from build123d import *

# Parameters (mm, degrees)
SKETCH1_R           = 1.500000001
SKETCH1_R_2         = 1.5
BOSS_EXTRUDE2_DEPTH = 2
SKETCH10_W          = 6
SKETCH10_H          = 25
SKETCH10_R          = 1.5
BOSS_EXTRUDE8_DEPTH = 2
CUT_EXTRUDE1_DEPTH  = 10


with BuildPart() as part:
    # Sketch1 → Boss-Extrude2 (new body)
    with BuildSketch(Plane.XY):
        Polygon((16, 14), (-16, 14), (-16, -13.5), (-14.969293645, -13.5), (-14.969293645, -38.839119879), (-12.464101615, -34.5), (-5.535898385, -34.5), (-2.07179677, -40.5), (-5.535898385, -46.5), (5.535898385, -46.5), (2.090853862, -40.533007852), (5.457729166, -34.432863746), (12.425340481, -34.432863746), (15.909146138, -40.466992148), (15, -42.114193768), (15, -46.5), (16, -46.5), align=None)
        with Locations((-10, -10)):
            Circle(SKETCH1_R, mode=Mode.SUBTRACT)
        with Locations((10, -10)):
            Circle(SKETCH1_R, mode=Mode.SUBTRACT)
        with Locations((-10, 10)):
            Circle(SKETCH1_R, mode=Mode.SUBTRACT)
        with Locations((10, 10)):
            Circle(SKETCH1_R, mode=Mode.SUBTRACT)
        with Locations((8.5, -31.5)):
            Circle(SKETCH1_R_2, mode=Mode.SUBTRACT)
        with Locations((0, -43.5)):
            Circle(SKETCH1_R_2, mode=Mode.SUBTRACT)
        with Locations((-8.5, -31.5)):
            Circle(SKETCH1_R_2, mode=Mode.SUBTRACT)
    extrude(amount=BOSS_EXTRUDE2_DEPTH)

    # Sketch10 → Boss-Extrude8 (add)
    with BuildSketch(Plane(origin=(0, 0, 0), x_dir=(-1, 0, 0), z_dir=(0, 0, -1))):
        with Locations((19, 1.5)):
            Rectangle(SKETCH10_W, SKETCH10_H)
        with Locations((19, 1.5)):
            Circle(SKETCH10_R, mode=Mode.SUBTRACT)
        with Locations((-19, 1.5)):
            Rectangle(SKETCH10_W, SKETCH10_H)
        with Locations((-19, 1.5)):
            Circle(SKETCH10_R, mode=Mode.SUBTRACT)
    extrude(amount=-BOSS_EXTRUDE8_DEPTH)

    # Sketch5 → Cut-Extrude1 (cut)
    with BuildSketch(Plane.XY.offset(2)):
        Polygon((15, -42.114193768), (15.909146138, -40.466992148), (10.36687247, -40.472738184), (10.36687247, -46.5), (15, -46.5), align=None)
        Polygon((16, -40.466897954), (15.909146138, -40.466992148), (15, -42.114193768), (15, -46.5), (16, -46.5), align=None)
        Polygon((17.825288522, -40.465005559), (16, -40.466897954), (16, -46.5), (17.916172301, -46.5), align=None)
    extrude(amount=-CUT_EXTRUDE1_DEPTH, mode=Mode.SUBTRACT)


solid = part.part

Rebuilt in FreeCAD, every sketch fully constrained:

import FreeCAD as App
import Part
import Sketcher
from FreeCAD import Vector
Q = App.Units.Quantity

doc = App.newDocument("Part")
body = doc.addObject("PartDesign::Body", "Body")

sketch1 = body.newObject("Sketcher::SketchObject", "Sketch")
sketch1.AttachmentSupport = (doc.getObject("XY_Plane"), [""])
sketch1.MapMode = "FlatFace"
sketch1.addGeometry(Part.LineSegment(Vector(16, 14, 0), Vector(-16, 14, 0)), False)
sketch1.addGeometry(Part.LineSegment(Vector(-16, 14, 0), Vector(-16, -13.5, 0)), False)
sketch1.addGeometry(Part.LineSegment(Vector(-16, -13.5, 0), Vector(-15, -13.5, 0)), False)
sketch1.addGeometry(Part.LineSegment(Vector(-15, -13.5, 0), Vector(-15, -38.8, 0)), False)
sketch1.addGeometry(Part.LineSegment(Vector(-15, -38.8, 0), Vector(-12.5, -34.5, 0)), False)
sketch1.addGeometry(Part.LineSegment(Vector(-12.5, -34.5, 0), Vector(-5.5, -34.5, 0)), False)
sketch1.addGeometry(Part.LineSegment(Vector(-5.5, -34.5, 0), Vector(-2.1, -40.5, 0)), False)
sketch1.addGeometry(Part.LineSegment(Vector(-2.1, -40.5, 0), Vector(-5.5, -46.5, 0)), False)
sketch1.addGeometry(Part.LineSegment(Vector(-5.5, -46.5, 0), Vector(5.5, -46.5, 0)), False)
sketch1.addGeometry(Part.LineSegment(Vector(5.5, -46.5, 0), Vector(2.1, -40.5, 0)), False)
sketch1.addGeometry(Part.LineSegment(Vector(2.1, -40.5, 0), Vector(5.5, -34.4, 0)), False)
sketch1.addGeometry(Part.LineSegment(Vector(5.5, -34.4, 0), Vector(12.4, -34.4, 0)), False)
sketch1.addGeometry(Part.LineSegment(Vector(12.4, -34.4, 0), Vector(15.9, -40.5, 0)), False)
sketch1.addGeometry(Part.LineSegment(Vector(15.9, -40.5, 0), Vector(15, -42.1, 0)), False)
sketch1.addGeometry(Part.LineSegment(Vector(15, -42.1, 0), Vector(15, -46.5, 0)), False)
sketch1.addGeometry(Part.LineSegment(Vector(15, -46.5, 0), Vector(16, -46.5, 0)), False)
sketch1.addGeometry(Part.LineSegment(Vector(16, -46.5, 0), Vector(16, 14, 0)), False)
sketch1.addGeometry(Part.Circle(Vector(-8.5, -31.5, 0), Vector(0, 0, 1), 1.5), False)
sketch1.addGeometry(Part.Circle(Vector(0, -43.5, 0), Vector(0, 0, 1), 1.5), False)
sketch1.addGeometry(Part.Circle(Vector(8.5, -31.5, 0), Vector(0, 0, 1), 1.5), False)
sketch1.addGeometry(Part.Circle(Vector(-10, -10, 0), Vector(0, 0, 1), 1.5), False)
sketch1.addGeometry(Part.Circle(Vector(-10, 10, 0), Vector(0, 0, 1), 1.5), False)
sketch1.addGeometry(Part.Circle(Vector(10, -10, 0), Vector(0, 0, 1), 1.5), False)
sketch1.addGeometry(Part.Circle(Vector(10, 10, 0), Vector(0, 0, 1), 1.5), False)
sketch1.addConstraint(Sketcher.Constraint("Coincident", 0, 2, 1, 1))
sketch1.addConstraint(Sketcher.Constraint("Coincident", 1, 2, 2, 1))
sketch1.addConstraint(Sketcher.Constraint("Coincident", 2, 2, 3, 1))
sketch1.addConstraint(Sketcher.Constraint("Coincident", 3, 2, 4, 1))
sketch1.addConstraint(Sketcher.Constraint("Coincident", 4, 2, 5, 1))
sketch1.addConstraint(Sketcher.Constraint("Coincident", 5, 2, 6, 1))
sketch1.addConstraint(Sketcher.Constraint("Coincident", 6, 2, 7, 1))
sketch1.addConstraint(Sketcher.Constraint("Coincident", 7, 2, 8, 1))
sketch1.addConstraint(Sketcher.Constraint("Coincident", 8, 2, 9, 1))
sketch1.addConstraint(Sketcher.Constraint("Coincident", 9, 2, 10, 1))
sketch1.addConstraint(Sketcher.Constraint("Coincident", 10, 2, 11, 1))
sketch1.addConstraint(Sketcher.Constraint("Coincident", 11, 2, 12, 1))
sketch1.addConstraint(Sketcher.Constraint("Coincident", 12, 2, 13, 1))
sketch1.addConstraint(Sketcher.Constraint("Coincident", 13, 2, 14, 1))
sketch1.addConstraint(Sketcher.Constraint("Coincident", 14, 2, 15, 1))
sketch1.addConstraint(Sketcher.Constraint("Coincident", 15, 2, 16, 1))
sketch1.addConstraint(Sketcher.Constraint("Coincident", 16, 2, 0, 1))
sketch1.addConstraint(Sketcher.Constraint("Horizontal", 0))
sketch1.addConstraint(Sketcher.Constraint("Vertical", 1))
sketch1.addConstraint(Sketcher.Constraint("Horizontal", 2))
sketch1.addConstraint(Sketcher.Constraint("Vertical", 3))
sketch1.addConstraint(Sketcher.Constraint("Horizontal", 5))
sketch1.addConstraint(Sketcher.Constraint("Horizontal", 8))
sketch1.addConstraint(Sketcher.Constraint("Horizontal", 11))
sketch1.addConstraint(Sketcher.Constraint("Vertical", 14))
sketch1.addConstraint(Sketcher.Constraint("Horizontal", 15))
sketch1.addConstraint(Sketcher.Constraint("Vertical", 16))
sketch1.addConstraint(Sketcher.Constraint("Equal", 17, 18))
sketch1.addConstraint(Sketcher.Constraint("Equal", 18, 19))
sketch1.addConstraint(Sketcher.Constraint("Equal", 19, 20))
sketch1.addConstraint(Sketcher.Constraint("Equal", 20, 21))
sketch1.addConstraint(Sketcher.Constraint("Equal", 21, 22))
sketch1.addConstraint(Sketcher.Constraint("Equal", 22, 23))
sketch1.addConstraint(Sketcher.Constraint("Symmetric", 21, 3, 22, 3, -1, 1))
sketch1.addConstraint(Sketcher.Constraint("Symmetric", 20, 3, 23, 3, -1, 1))
sketch1.addConstraint(Sketcher.Constraint("Symmetric", 17, 3, 19, 3, -2))
sketch1.addConstraint(Sketcher.Constraint("Symmetric", 20, 3, 22, 3, -2))
sketch1.addConstraint(Sketcher.Constraint("PointOnObject", 18, 3, -2))
sketch1.addConstraint(Sketcher.Constraint("Parallel", 4, 7))
sketch1.addConstraint(Sketcher.Constraint("Parallel", 6, 9))
sketch1.addConstraint(Sketcher.Constraint("Parallel", 9, 12))
sketch1.addConstraint(Sketcher.Constraint("Parallel", 10, 13))
sketch1.addConstraint(Sketcher.Constraint("Horizontal", 8, 2, 14, 2))
sketch1.addConstraint(Sketcher.Constraint("Vertical", 5, 2, 7, 2))
sketch1.addConstraint(Sketcher.Constraint("Equal", 6, 7))
sketch1.addConstraint(Sketcher.Constraint("Equal", 10, 12))
sketch1.addConstraint(Sketcher.Constraint("Diameter", 17, 3.0))
sketch1.addConstraint(Sketcher.Constraint("DistanceX", 0, 2, 0, 1, 32.0))
sketch1.addConstraint(Sketcher.Constraint("DistanceX", 15, 1, 15, 2, 1.0))
sketch1.addConstraint(Sketcher.Constraint("Angle", 4, Q("60 deg")))
sketch1.addConstraint(Sketcher.Constraint("DistanceY", 1, 2, 1, 1, 27.5))
sketch1.addConstraint(Sketcher.Constraint("DistanceY", 16, 1, 16, 2, 60.5))
sketch1.addConstraint(Sketcher.Constraint("DistanceX", 20, 3, -1, 1, 10.0))
sketch1.addConstraint(Sketcher.Constraint("DistanceY", 20, 3, -1, 1, 10.0))
sketch1.addConstraint(Sketcher.Constraint("DistanceX", 0, 2, -1, 1, 16.0))
sketch1.addConstraint(Sketcher.Constraint("DistanceY", -1, 1, 0, 2, 14.0))
sketch1.addConstraint(Sketcher.Constraint("DistanceY", 18, 3, 17, 3, 12.0))
sketch1.addConstraint(Sketcher.Constraint("DistanceX", 17, 3, 19, 3, 17.0))
sketch1.addConstraint(Sketcher.Constraint("DistanceY", 17, 3, 1, 2, 18.0))
sketch1.addConstraint(Sketcher.Constraint("DistanceY", 4, 2, 17, 3, 3.0))
sketch1.addConstraint(Sketcher.Constraint("DistanceX", 11, 1, 11, 2, 6.967611))
sketch1.addConstraint(Sketcher.Constraint("DistanceY", 3, 2, 3, 1, 25.33912))
sketch1.addConstraint(Sketcher.Constraint("DistanceX", 4, 2, -1, 1, 12.464102))
sketch1.addConstraint(Sketcher.Constraint("DistanceX", 5, 2, -1, 1, 5.535898))
sketch1.addConstraint(Sketcher.Constraint("DistanceX", -1, 1, 8, 2, 5.535898))
sketch1.addConstraint(Sketcher.Constraint("DistanceY", 13, 2, 12, 2, 1.647202))
sketch1.addConstraint(Sketcher.Constraint("Distance", 9, 6.890089))
sketch1.addConstraint(Sketcher.Constraint("Distance", 10, 6.967611))
pad1 = body.newObject("PartDesign::Pad", "Pad")
pad1.Profile = sketch1
pad1.Length = 2

sketch2 = body.newObject("Sketcher::SketchObject", "Sketch001")
sketch2.AttachmentSupport = (doc.getObject("XY_Plane"), [""])
sketch2.MapMode = "FlatFace"
sketch2.addGeometry(Part.LineSegment(Vector(-16, 14, 0), Vector(-16, -11, 0)), False)
sketch2.addGeometry(Part.LineSegment(Vector(-16, -11, 0), Vector(-22, -11, 0)), False)
sketch2.addGeometry(Part.LineSegment(Vector(-22, -11, 0), Vector(-22, 14, 0)), False)
sketch2.addGeometry(Part.LineSegment(Vector(-22, 14, 0), Vector(-16, 14, 0)), False)
sketch2.addGeometry(Part.Circle(Vector(-19, 1.5, 0), Vector(0, 0, 1), 1.5), False)
sketch2.addGeometry(Part.LineSegment(Vector(22, 14, 0), Vector(22, -11, 0)), False)
sketch2.addGeometry(Part.LineSegment(Vector(22, -11, 0), Vector(16, -11, 0)), False)
sketch2.addGeometry(Part.LineSegment(Vector(16, -11, 0), Vector(16, 14, 0)), False)
sketch2.addGeometry(Part.LineSegment(Vector(16, 14, 0), Vector(22, 14, 0)), False)
sketch2.addGeometry(Part.Circle(Vector(19, 1.5, 0), Vector(0, 0, 1), 1.5), False)
sketch2.addConstraint(Sketcher.Constraint("Coincident", 0, 2, 1, 1))
sketch2.addConstraint(Sketcher.Constraint("Coincident", 1, 2, 2, 1))
sketch2.addConstraint(Sketcher.Constraint("Coincident", 2, 2, 3, 1))
sketch2.addConstraint(Sketcher.Constraint("Coincident", 3, 2, 0, 1))
sketch2.addConstraint(Sketcher.Constraint("Coincident", 5, 2, 6, 1))
sketch2.addConstraint(Sketcher.Constraint("Coincident", 6, 2, 7, 1))
sketch2.addConstraint(Sketcher.Constraint("Coincident", 7, 2, 8, 1))
sketch2.addConstraint(Sketcher.Constraint("Coincident", 8, 2, 5, 1))
sketch2.addConstraint(Sketcher.Constraint("Vertical", 0))
sketch2.addConstraint(Sketcher.Constraint("Horizontal", 1))
sketch2.addConstraint(Sketcher.Constraint("Vertical", 2))
sketch2.addConstraint(Sketcher.Constraint("Horizontal", 3))
sketch2.addConstraint(Sketcher.Constraint("Vertical", 5))
sketch2.addConstraint(Sketcher.Constraint("Horizontal", 6))
sketch2.addConstraint(Sketcher.Constraint("Vertical", 7))
sketch2.addConstraint(Sketcher.Constraint("Horizontal", 8))
sketch2.addConstraint(Sketcher.Constraint("Equal", 4, 9))
sketch2.addConstraint(Sketcher.Constraint("Symmetric", 4, 3, 9, 3, -2))
sketch2.addConstraint(Sketcher.Constraint("Symmetric", 1, 2, 5, 2, -2))
sketch2.addConstraint(Sketcher.Constraint("Symmetric", 3, 2, 7, 2, -2))
sketch2.addConstraint(Sketcher.Constraint("Diameter", 4, 3.0))
sketch2.addConstraint(Sketcher.Constraint("DistanceX", 1, 2, 1, 1, 6.0))
sketch2.addConstraint(Sketcher.Constraint("DistanceY", 0, 2, 0, 1, 25.0))
sketch2.addConstraint(Sketcher.Constraint("DistanceX", 4, 3, -1, 1, 19.0))
sketch2.addConstraint(Sketcher.Constraint("DistanceX", 0, 2, -1, 1, 16.0))
sketch2.addConstraint(Sketcher.Constraint("DistanceY", 0, 2, -1, 1, 11.0))
sketch2.addConstraint(Sketcher.Constraint("DistanceY", -1, 1, 4, 3, 1.5))
pad2 = body.newObject("PartDesign::Pad", "Pad001")
pad2.Profile = sketch2
pad2.Length = 2

sketch3 = body.newObject("Sketcher::SketchObject", "Sketch002")
sketch3.AttachmentSupport = (doc.getObject("XY_Plane"), [""])
sketch3.MapMode = "FlatFace"
sketch3.AttachmentOffset = App.Placement(Vector(0, 0, 2), App.Rotation())
sketch3.addGeometry(Part.LineSegment(Vector(15.909146, -40.466992, 0), Vector(10.366872, -40.472738, 0)), False)
sketch3.addGeometry(Part.LineSegment(Vector(10.366872, -40.472738, 0), Vector(10.366872, -46.5, 0)), False)
sketch3.addGeometry(Part.LineSegment(Vector(10.366872, -46.5, 0), Vector(17.916172, -46.5, 0)), False)
sketch3.addGeometry(Part.LineSegment(Vector(17.916172, -46.5, 0), Vector(17.825289, -40.465006, 0)), False)
sketch3.addGeometry(Part.LineSegment(Vector(17.825289, -40.465006, 0), Vector(16, -40.466898, 0)), False)
sketch3.addGeometry(Part.LineSegment(Vector(16, -40.466898, 0), Vector(15.909146, -40.466992, 0)), False)
sketch3.addConstraint(Sketcher.Constraint("Coincident", 0, 2, 1, 1))
sketch3.addConstraint(Sketcher.Constraint("Coincident", 1, 2, 2, 1))
sketch3.addConstraint(Sketcher.Constraint("Coincident", 2, 2, 3, 1))
sketch3.addConstraint(Sketcher.Constraint("Coincident", 3, 2, 4, 1))
sketch3.addConstraint(Sketcher.Constraint("Coincident", 4, 2, 5, 1))
sketch3.addConstraint(Sketcher.Constraint("Coincident", 5, 2, 0, 1))
sketch3.addConstraint(Sketcher.Constraint("Vertical", 1))
sketch3.addConstraint(Sketcher.Constraint("Horizontal", 2))
sketch3.addConstraint(Sketcher.Constraint("DistanceX", -1, 1, 4, 2, 16.0))
sketch3.addConstraint(Sketcher.Constraint("DistanceY", 1, 2, -1, 1, 46.5))
sketch3.addConstraint(Sketcher.Constraint("DistanceX", 2, 1, 2, 2, 7.5493))
sketch3.addConstraint(Sketcher.Constraint("DistanceY", 1, 2, 1, 1, 6.027262))
sketch3.addConstraint(Sketcher.Constraint("Distance", 3, 6.035679))
sketch3.addConstraint(Sketcher.Constraint("Distance", 4, 1.82529))
sketch3.addConstraint(Sketcher.Constraint("DistanceY", 0, 2, 4, 2, 0.00584))
sketch3.addConstraint(Sketcher.Constraint("Distance", 0, 5.542277))
sketch3.addConstraint(Sketcher.Constraint("Distance", 5, 0.090854))
sketch3.addConstraint(Sketcher.Constraint("DistanceY", 5, 2, -1, 1, 40.466992))
pocket1 = body.newObject("PartDesign::Pocket", "Pocket")
pocket1.Profile = sketch3
pocket1.Length = 10

doc.recompute()
